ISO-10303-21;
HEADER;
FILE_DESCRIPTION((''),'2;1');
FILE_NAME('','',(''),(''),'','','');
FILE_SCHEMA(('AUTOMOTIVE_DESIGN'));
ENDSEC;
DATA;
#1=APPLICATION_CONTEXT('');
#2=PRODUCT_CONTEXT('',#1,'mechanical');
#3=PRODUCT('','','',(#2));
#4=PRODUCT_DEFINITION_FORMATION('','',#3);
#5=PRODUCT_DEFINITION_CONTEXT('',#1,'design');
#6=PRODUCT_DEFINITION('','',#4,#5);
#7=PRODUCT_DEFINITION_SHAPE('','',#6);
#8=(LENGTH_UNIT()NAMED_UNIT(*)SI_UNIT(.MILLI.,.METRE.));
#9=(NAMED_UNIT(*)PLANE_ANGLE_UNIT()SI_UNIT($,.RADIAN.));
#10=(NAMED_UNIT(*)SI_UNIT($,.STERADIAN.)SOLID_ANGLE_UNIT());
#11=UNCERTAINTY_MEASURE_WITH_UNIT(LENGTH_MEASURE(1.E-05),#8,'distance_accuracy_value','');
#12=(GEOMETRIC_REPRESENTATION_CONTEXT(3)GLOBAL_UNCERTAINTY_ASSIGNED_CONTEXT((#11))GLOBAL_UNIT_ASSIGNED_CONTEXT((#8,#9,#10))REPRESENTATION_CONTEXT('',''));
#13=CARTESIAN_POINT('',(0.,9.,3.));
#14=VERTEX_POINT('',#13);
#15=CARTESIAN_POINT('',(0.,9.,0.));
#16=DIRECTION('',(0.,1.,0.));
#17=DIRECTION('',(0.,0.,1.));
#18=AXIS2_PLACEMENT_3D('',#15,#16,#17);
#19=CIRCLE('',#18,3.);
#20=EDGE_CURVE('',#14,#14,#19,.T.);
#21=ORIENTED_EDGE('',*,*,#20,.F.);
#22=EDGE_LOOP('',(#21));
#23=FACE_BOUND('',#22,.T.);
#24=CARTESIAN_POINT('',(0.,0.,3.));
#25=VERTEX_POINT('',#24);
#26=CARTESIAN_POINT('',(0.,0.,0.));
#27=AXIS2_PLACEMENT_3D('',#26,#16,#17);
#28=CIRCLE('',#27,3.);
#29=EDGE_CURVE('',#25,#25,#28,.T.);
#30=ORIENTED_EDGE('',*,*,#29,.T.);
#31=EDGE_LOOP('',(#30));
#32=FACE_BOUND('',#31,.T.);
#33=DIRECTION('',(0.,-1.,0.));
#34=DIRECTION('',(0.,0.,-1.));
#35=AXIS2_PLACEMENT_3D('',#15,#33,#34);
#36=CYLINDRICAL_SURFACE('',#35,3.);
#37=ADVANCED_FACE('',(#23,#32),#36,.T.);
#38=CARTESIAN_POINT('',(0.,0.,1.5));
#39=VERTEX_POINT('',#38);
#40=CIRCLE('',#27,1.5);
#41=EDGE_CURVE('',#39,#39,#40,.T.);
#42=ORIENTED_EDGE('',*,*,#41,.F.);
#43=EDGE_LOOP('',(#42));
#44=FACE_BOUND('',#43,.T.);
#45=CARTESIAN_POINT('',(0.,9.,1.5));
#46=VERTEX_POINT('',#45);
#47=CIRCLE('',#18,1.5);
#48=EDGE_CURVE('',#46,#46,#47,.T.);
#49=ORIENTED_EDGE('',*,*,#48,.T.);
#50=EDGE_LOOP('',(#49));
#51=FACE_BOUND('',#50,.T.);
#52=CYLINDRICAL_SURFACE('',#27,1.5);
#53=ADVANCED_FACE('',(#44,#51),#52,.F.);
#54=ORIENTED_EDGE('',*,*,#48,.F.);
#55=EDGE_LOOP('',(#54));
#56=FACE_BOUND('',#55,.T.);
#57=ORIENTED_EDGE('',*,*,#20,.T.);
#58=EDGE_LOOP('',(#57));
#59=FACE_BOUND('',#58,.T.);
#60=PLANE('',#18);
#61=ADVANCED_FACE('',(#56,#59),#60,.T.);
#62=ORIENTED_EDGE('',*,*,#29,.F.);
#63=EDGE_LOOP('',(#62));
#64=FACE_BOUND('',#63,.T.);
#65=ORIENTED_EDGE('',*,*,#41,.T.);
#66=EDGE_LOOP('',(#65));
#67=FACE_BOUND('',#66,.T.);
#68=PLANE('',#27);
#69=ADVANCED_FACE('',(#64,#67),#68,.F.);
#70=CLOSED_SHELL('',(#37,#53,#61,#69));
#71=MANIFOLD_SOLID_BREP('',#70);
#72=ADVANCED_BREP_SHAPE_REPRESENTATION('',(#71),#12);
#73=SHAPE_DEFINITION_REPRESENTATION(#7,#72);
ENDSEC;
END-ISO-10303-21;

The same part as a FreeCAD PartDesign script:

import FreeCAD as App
import Part
import Sketcher

V = App.Vector
Q = App.Units.Quantity

doc = App.newDocument("Part")
body = doc.addObject("PartDesign::Body", "Body")

sketch1 = body.newObject("Sketcher::SketchObject", "Sketch")
sketch1.AttachmentSupport = (doc.getObject("XZ_Plane"), [""])
sketch1.MapMode = "FlatFace"
sketch1.addGeometry(Part.Circle(V(0, 0, 0), V(0, 0, 1), 3), False)
sketch1.addConstraint(Sketcher.Constraint("Coincident", 0, 3, -1, 1))
sketch1.addConstraint(Sketcher.Constraint("Diameter", 0, Q("6 mm")))
pad1 = body.newObject("PartDesign::Pad", "Pad")
pad1.Profile = sketch1
pad1.Length = 9
pad1.Reversed = True

sketch2 = body.newObject("Sketcher::SketchObject", "Sketch001")
sketch2.AttachmentSupport = (doc.getObject("XZ_Plane"), [""])
sketch2.MapMode = "FlatFace"
sketch2.AttachmentOffset = App.Placement(V(0, 0, -9), App.Rotation())
sketch2.addGeometry(Part.Circle(V(0, 0, 0), V(0, 0, 1), 1.5), False)
sketch2.addConstraint(Sketcher.Constraint("Coincident", 0, 3, -1, 1))
sketch2.addConstraint(Sketcher.Constraint("Diameter", 0, Q("3 mm")))
pocket1 = body.newObject("PartDesign::Pocket", "Pocket")
pocket1.Profile = sketch2
pocket1.Length = 9
pocket1.Reversed = True

doc.recompute()
